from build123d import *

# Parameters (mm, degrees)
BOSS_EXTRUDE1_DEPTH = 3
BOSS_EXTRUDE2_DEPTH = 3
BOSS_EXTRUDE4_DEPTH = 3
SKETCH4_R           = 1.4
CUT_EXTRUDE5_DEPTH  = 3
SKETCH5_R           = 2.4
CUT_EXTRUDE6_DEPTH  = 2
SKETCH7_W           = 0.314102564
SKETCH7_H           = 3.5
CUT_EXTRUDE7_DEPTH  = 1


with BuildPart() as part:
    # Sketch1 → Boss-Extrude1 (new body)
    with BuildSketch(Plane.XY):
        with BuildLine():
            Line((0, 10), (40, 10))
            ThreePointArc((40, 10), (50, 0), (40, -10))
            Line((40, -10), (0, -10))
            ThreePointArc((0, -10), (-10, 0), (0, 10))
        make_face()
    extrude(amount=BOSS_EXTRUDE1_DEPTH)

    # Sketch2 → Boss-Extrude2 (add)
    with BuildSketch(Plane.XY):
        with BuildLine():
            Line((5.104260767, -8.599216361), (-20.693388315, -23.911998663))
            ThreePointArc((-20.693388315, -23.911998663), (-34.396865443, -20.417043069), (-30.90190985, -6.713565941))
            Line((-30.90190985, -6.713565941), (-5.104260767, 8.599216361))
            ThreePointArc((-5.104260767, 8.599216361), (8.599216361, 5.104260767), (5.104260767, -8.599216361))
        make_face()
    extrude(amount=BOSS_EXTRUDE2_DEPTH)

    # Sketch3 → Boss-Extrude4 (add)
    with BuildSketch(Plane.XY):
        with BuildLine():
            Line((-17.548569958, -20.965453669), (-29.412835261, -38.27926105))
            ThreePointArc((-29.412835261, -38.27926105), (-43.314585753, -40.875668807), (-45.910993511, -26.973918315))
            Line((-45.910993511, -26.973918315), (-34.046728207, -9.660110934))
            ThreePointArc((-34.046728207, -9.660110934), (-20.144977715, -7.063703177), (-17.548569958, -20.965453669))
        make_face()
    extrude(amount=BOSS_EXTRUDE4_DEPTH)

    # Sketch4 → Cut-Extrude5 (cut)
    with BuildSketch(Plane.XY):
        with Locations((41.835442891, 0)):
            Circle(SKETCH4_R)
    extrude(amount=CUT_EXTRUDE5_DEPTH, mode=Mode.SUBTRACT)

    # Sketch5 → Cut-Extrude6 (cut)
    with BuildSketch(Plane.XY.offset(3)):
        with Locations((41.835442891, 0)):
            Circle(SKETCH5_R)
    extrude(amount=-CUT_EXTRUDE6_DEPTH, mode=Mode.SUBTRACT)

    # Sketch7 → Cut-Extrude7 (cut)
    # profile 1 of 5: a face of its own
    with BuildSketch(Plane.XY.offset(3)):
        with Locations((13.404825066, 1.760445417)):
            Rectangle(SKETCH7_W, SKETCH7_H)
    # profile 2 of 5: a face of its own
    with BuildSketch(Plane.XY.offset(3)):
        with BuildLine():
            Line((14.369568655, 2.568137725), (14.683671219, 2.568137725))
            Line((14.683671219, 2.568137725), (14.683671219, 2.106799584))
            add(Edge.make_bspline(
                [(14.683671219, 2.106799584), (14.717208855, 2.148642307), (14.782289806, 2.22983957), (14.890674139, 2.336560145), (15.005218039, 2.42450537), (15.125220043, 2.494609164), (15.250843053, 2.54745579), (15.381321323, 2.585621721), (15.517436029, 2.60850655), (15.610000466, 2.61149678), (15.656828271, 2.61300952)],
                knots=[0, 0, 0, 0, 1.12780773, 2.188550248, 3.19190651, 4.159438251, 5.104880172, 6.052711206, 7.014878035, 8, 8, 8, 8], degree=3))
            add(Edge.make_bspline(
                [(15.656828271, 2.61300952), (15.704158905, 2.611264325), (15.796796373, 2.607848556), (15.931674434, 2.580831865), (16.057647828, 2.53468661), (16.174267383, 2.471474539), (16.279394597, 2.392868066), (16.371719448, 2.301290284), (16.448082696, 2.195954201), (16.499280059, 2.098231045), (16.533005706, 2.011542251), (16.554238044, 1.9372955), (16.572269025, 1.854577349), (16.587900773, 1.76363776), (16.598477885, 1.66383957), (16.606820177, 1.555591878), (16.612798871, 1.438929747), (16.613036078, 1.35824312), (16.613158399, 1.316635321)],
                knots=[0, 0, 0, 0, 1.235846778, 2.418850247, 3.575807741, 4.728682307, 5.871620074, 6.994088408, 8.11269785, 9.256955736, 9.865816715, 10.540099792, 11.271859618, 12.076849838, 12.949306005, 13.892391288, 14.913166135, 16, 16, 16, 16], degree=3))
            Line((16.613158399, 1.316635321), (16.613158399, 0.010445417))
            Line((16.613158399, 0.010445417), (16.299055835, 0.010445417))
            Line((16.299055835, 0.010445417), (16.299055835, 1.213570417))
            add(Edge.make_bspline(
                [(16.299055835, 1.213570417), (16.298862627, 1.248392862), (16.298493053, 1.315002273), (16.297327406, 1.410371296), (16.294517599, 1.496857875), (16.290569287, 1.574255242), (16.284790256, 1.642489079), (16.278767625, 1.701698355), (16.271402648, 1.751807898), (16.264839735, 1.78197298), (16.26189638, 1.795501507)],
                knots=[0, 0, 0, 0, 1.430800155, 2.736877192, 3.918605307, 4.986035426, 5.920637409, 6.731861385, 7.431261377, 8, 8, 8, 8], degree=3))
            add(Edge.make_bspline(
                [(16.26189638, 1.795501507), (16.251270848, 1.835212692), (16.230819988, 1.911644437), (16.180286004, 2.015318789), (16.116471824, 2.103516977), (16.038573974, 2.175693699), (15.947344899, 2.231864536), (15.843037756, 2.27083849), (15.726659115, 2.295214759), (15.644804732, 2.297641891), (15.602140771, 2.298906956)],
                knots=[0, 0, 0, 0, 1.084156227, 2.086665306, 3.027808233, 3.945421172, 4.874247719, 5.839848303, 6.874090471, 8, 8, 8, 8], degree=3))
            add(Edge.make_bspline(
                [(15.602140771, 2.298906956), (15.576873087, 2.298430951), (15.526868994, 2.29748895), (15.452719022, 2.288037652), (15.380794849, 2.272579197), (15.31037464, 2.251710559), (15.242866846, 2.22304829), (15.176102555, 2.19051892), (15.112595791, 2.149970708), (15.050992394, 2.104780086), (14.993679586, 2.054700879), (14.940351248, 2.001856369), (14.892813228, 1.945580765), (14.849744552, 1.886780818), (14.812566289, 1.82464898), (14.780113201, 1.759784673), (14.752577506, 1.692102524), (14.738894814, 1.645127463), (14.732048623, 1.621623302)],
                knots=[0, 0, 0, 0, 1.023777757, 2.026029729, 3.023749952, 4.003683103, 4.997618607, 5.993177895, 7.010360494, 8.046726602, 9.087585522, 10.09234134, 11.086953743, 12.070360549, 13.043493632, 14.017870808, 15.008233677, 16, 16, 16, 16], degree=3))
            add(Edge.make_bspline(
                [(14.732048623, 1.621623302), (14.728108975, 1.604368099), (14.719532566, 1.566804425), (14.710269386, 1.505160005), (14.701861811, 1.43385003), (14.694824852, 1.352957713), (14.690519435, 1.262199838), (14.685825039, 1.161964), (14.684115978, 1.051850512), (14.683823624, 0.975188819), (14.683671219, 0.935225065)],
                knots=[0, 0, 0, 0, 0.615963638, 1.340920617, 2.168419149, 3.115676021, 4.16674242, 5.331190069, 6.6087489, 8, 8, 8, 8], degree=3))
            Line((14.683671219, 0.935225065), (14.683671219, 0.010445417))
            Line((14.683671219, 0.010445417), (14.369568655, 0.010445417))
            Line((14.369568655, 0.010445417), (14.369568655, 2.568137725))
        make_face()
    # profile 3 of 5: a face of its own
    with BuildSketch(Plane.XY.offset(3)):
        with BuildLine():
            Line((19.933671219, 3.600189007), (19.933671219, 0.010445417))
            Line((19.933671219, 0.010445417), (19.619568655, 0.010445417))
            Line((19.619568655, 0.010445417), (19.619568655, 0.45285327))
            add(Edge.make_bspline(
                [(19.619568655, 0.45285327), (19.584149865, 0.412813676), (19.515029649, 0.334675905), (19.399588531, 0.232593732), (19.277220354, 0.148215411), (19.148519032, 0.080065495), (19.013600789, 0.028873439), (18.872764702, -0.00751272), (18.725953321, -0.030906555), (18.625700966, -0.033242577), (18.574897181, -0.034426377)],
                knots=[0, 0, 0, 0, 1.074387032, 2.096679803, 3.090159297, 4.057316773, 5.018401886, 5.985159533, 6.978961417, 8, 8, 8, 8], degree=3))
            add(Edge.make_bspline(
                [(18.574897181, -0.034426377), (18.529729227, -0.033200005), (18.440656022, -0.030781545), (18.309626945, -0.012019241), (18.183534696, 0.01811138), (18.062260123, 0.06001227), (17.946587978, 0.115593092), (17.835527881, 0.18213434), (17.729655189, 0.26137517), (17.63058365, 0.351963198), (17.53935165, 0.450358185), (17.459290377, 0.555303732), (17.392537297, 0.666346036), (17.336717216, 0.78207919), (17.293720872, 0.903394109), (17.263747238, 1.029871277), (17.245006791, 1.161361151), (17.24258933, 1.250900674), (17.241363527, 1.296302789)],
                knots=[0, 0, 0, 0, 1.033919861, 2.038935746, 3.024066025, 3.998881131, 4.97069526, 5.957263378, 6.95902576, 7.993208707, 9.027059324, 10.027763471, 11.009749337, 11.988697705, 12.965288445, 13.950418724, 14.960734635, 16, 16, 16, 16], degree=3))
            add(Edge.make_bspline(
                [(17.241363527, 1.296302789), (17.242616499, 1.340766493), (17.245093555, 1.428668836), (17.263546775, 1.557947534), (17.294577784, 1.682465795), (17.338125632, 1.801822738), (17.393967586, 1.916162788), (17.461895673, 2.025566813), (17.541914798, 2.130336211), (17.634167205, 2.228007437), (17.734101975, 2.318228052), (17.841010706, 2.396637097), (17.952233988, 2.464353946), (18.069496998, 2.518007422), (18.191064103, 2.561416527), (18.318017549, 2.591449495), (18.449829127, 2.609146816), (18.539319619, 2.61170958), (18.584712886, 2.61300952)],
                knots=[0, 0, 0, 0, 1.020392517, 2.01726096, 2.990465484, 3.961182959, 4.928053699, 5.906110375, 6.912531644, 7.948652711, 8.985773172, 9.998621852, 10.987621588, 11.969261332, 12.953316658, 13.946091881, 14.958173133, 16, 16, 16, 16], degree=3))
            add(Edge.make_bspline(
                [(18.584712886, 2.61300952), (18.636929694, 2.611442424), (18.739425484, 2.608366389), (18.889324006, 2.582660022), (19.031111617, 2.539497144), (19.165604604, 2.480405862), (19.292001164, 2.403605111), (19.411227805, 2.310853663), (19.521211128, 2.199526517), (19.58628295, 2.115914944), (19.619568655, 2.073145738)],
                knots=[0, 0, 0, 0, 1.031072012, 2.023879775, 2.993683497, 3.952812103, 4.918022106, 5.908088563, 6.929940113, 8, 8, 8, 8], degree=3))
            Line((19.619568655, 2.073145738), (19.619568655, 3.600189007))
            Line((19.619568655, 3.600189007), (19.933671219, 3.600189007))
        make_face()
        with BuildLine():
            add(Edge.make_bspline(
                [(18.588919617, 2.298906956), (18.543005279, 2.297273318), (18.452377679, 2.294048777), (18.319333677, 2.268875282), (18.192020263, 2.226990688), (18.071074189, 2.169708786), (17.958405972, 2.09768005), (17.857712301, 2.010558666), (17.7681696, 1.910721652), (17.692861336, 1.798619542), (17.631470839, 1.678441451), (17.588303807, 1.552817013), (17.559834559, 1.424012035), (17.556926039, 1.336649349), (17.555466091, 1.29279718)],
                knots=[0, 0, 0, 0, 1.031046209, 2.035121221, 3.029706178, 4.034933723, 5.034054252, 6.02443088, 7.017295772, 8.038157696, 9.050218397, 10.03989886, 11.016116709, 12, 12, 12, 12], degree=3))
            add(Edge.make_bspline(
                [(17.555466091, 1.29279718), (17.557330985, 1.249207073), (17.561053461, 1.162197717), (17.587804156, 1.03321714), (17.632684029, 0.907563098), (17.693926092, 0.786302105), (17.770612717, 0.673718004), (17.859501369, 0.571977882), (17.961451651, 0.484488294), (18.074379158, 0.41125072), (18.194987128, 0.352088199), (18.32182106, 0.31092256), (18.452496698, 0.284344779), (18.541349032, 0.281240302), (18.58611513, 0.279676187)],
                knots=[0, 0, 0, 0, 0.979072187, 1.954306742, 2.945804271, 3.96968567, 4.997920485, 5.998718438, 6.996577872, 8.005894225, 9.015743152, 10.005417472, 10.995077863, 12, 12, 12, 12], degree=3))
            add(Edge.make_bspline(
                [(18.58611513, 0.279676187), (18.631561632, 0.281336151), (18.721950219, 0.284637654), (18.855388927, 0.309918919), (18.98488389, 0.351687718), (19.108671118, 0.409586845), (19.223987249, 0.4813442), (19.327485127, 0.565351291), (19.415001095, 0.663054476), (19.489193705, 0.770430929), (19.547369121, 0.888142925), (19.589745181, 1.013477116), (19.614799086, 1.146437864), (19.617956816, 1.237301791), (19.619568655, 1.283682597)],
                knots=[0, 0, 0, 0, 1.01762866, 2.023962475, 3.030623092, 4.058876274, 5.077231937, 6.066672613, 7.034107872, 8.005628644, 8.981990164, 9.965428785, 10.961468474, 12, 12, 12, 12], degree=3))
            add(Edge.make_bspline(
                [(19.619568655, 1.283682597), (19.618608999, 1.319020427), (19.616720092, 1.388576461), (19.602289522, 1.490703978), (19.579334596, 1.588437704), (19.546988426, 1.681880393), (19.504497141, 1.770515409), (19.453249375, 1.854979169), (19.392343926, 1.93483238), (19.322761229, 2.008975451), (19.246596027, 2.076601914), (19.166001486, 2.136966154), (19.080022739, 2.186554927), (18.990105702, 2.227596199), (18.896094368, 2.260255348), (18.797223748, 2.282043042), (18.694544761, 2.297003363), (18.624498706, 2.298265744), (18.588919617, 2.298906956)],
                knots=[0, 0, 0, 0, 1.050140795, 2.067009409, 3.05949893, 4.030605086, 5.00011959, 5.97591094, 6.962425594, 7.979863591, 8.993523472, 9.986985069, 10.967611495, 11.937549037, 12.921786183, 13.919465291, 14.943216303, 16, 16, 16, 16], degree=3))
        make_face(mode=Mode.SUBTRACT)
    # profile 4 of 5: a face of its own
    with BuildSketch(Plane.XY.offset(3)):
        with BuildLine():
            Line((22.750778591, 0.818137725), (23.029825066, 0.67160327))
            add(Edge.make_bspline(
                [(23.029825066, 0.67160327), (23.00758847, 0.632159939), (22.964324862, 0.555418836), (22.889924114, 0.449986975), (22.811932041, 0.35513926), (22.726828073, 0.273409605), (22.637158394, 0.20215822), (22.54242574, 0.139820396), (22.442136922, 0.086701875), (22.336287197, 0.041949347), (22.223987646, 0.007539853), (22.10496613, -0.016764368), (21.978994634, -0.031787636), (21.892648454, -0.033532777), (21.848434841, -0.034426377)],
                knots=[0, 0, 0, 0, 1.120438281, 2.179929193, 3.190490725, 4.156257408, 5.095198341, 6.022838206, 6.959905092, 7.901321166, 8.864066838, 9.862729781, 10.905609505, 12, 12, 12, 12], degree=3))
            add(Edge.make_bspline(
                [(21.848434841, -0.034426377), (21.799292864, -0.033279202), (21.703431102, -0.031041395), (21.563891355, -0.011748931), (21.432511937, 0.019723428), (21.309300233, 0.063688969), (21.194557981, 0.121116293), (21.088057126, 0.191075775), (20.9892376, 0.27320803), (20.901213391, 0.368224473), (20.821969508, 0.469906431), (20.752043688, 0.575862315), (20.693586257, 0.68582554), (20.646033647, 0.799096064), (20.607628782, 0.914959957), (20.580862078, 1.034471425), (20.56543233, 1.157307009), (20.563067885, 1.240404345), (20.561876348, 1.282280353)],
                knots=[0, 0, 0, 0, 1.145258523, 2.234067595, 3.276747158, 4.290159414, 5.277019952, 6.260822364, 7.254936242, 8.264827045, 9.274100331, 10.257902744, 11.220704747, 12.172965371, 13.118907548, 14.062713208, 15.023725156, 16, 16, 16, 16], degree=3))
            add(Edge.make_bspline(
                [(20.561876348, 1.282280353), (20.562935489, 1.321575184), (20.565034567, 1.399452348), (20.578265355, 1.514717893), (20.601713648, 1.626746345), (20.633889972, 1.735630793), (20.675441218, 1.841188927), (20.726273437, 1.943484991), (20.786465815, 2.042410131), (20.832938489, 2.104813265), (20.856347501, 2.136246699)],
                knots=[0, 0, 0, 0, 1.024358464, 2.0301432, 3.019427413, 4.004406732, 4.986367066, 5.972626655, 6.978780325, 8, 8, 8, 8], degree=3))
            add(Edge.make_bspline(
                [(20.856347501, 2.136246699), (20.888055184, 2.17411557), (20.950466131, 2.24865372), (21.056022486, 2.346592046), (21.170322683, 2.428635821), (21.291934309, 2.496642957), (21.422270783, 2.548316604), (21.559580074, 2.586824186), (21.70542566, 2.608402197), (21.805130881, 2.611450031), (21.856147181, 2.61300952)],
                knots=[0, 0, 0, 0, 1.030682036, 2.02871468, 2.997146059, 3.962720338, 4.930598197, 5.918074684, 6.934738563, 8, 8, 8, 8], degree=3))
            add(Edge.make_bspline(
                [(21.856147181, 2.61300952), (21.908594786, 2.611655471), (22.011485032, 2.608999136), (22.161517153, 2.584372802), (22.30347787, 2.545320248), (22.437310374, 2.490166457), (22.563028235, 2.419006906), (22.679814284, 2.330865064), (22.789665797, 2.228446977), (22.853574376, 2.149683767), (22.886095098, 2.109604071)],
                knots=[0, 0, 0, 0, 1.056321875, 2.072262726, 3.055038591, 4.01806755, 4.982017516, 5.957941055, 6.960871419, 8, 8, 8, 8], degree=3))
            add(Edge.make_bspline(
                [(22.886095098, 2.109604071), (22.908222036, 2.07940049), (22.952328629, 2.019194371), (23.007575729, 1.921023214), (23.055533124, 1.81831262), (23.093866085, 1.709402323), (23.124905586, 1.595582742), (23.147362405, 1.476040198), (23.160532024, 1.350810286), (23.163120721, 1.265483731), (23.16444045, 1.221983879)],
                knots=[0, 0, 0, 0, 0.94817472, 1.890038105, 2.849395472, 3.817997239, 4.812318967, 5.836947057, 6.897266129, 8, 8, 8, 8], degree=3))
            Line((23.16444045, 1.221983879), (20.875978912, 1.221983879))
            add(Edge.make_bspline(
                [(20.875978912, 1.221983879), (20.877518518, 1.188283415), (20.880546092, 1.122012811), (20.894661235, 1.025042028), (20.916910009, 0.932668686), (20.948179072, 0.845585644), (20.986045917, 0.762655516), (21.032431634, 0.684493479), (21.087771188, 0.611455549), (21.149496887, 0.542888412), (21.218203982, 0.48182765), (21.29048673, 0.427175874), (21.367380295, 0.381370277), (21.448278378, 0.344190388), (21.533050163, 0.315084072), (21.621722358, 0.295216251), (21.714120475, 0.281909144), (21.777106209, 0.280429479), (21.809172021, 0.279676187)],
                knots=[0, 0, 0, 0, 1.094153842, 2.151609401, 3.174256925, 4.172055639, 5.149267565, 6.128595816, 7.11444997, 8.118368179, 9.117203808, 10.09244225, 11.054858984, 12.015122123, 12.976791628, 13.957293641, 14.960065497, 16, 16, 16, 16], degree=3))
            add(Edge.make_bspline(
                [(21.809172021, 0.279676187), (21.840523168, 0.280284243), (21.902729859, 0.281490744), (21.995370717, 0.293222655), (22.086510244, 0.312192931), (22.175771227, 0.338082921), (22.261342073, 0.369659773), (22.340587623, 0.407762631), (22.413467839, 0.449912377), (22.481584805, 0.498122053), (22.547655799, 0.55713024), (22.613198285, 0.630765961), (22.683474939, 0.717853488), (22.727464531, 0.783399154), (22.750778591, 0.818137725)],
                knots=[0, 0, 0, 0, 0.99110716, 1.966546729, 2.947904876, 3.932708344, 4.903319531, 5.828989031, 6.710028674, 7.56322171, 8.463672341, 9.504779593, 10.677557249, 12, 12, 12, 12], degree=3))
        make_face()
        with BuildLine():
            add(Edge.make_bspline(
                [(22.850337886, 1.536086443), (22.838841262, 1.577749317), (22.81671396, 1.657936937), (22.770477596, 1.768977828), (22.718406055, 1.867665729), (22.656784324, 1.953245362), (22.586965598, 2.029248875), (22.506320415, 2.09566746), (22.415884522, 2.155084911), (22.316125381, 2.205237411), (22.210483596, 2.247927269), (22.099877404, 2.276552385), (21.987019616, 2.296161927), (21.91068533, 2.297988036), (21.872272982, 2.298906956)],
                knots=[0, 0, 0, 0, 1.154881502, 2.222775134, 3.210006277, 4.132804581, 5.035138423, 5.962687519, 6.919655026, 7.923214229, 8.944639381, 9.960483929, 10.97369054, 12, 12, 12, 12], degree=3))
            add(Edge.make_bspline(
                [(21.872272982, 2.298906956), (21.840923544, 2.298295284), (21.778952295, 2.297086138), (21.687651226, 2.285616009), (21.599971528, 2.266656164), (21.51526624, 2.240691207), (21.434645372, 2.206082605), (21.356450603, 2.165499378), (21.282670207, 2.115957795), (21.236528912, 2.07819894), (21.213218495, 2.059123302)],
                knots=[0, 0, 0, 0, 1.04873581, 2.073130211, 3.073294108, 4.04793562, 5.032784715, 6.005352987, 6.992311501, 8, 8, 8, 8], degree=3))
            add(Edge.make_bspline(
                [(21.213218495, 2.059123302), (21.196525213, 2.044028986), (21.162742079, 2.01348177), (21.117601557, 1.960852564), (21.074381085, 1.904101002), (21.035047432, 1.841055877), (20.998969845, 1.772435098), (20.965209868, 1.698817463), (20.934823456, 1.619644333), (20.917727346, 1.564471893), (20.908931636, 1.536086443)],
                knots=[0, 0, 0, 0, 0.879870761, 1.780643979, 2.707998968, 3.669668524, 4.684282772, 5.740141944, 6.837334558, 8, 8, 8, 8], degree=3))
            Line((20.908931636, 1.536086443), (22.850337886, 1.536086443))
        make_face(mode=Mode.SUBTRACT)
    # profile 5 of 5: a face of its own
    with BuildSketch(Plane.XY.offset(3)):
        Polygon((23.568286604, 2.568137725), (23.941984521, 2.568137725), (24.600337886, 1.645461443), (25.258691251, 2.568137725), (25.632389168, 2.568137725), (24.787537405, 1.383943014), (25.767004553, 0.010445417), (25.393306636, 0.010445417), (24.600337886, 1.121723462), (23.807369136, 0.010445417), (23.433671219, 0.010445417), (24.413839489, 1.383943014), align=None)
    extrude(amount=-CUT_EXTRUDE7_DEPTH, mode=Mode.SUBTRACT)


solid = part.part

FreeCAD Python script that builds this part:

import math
import FreeCAD as App
import Part
import Sketcher

V = App.Vector
Q = App.Units.Quantity


def add_polygon(sketch, points):
    """Adds a closed chain of lines whose ends are joined by coincident constraints."""
    first, n = sketch.GeometryCount, len(points)
    for a, b in zip(points, points[1:] + points[:1]):
        sketch.addGeometry(Part.LineSegment(App.Vector(*a, 0), App.Vector(*b, 0)), False)
    for i in range(n):
        sketch.addConstraint(Sketcher.Constraint("Coincident", first + i, 2, first + (i + 1) % n, 1))

doc = App.newDocument("Part")
body = doc.addObject("PartDesign::Body", "Body")

sketch1 = doc.addObject("Sketcher::SketchObject", "Sketch")
body.addObject(sketch1)
sketch1.AttachmentSupport = (doc.XY_Plane, [""])
sketch1.MapMode = "FlatFace"
sketch1.addGeometry([
    Part.LineSegment(V(40, 10, 0), V(0, 10, 0)),
    Part.ArcOfCircle(Part.Circle(V(0, 0, 0), V(0, 0, 1), 10), math.radians(90), math.radians(270)),
    Part.LineSegment(V(0, -10, 0), V(40, -10, 0)),
    Part.ArcOfCircle(Part.Circle(V(40, 0, 0), V(0, 0, 1), 10), math.radians(-90), math.radians(90)),
], False)
sketch1.addConstraint([
    Sketcher.Constraint("Tangent", 0, 2, 1, 1),
    Sketcher.Constraint("Tangent", 1, 2, 2, 1),
    Sketcher.Constraint("Tangent", 2, 2, 3, 1),
    Sketcher.Constraint("Tangent", 3, 2, 0, 1),
    Sketcher.Constraint("Horizontal", 0),
    Sketcher.Constraint("Horizontal", 2),
    Sketcher.Constraint("Coincident", 1, 3, -1, 1),
    Sketcher.Constraint("Radius", 1, Q("10 mm")),
    Sketcher.Constraint("DistanceX", 0, 2, 0, 1, Q("40 mm")),
])
pad1 = doc.addObject("PartDesign::Pad", "Pad")
body.addObject(pad1)
pad1.Profile = sketch1
pad1.Length = 3

sketch2 = doc.addObject("Sketcher::SketchObject", "Sketch001")
body.addObject(sketch2)
sketch2.AttachmentSupport = (doc.XY_Plane, [""])
sketch2.MapMode = "FlatFace"
sketch2.addGeometry([
    Part.LineSegment(V(-21, -24, 0), V(5, -9, 0)),
    Part.ArcOfCircle(Part.Circle(V(0, 0, 0), V(0, 0, 1), 10), math.radians(-59), math.radians(121)),
    Part.LineSegment(V(-5, 9, 0), V(-31, -7, 0)),
    Part.ArcOfCircle(Part.Circle(V(-26, -15, 0), V(0, 0, 1), 10), math.radians(121), math.radians(301)),
], False)
sketch2.addConstraint([
    Sketcher.Constraint("Tangent", 0, 2, 1, 1),
    Sketcher.Constraint("Tangent", 1, 2, 2, 1),
    Sketcher.Constraint("Tangent", 2, 2, 3, 1),
    Sketcher.Constraint("Tangent", 3, 2, 0, 1),
    Sketcher.Constraint("Coincident", 1, 3, -1, 1),
    Sketcher.Constraint("Equal", 1, 3),
    Sketcher.Constraint("Radius", 1, Q("10 mm")),
    Sketcher.Constraint("Distance", 0, Q("30 mm")),
    Sketcher.Constraint("DistanceY", 3, 2, -1, 1, Q("23.911999 mm")),
])
pad2 = doc.addObject("PartDesign::Pad", "Pad001")
body.addObject(pad2)
pad2.Profile = sketch2
pad2.Length = 3

sketch3 = doc.addObject("Sketcher::SketchObject", "Sketch002")
body.addObject(sketch3)
sketch3.AttachmentSupport = (doc.XY_Plane, [""])
sketch3.MapMode = "FlatFace"
sketch3.addGeometry([
    Part.LineSegment(V(-29, -38, 0), V(-18, -21, 0)),
    Part.ArcOfCircle(Part.Circle(V(-26, -15, 0), V(0, 0, 1), 10), math.radians(-34), math.radians(146)),
    Part.LineSegment(V(-34, -10, 0), V(-46, -27, 0)),
    Part.ArcOfCircle(Part.Circle(V(-38, -33, 0), V(0, 0, 1), 10), math.radians(146), math.radians(326)),
], False)
sketch3.addConstraint([
    Sketcher.Constraint("Tangent", 0, 2, 1, 1),
    Sketcher.Constraint("Tangent", 1, 2, 2, 1),
    Sketcher.Constraint("Tangent", 2, 2, 3, 1),
    Sketcher.Constraint("Tangent", 3, 2, 0, 1),
    Sketcher.Constraint("Equal", 1, 3),
    Sketcher.Constraint("Radius", 1, Q("10 mm")),
    Sketcher.Constraint("DistanceX", 1, 3, -1, 1, Q("25.797649 mm")),
    Sketcher.Constraint("DistanceY", 3, 3, -1, 1, Q("32.62659 mm")),
    Sketcher.Constraint("DistanceX", 0, 2, -1, 1, Q("17.54857 mm")),
    Sketcher.Constraint("DistanceY", 1, 2, -1, 1, Q("9.660111 mm")),
])
pad3 = doc.addObject("PartDesign::Pad", "Pad002")
body.addObject(pad3)
pad3.Profile = sketch3
pad3.Length = 3

sketch4 = doc.addObject("Sketcher::SketchObject", "Sketch003")
body.addObject(sketch4)
sketch4.AttachmentSupport = (doc.XY_Plane, [""])
sketch4.MapMode = "FlatFace"
sketch4.addGeometry(Part.Circle(V(41.8, 0, 0), V(0, 0, 1), 1.4), False)
sketch4.addConstraint([
    Sketcher.Constraint("PointOnObject", 0, 3, -1),
    Sketcher.Constraint("Diameter", 0, Q("2.8 mm")),
    Sketcher.Constraint("DistanceX", -1, 1, 0, 3, Q("41.835443 mm")),
])
pocket1 = doc.addObject("PartDesign::Pocket", "Pocket")
body.addObject(pocket1)
pocket1.Profile = sketch4
pocket1.Length = 3
pocket1.Reversed = True

sketch5 = doc.addObject("Sketcher::SketchObject", "Sketch004")
body.addObject(sketch5)
sketch5.AttachmentSupport = (doc.XY_Plane, [""])
sketch5.MapMode = "FlatFace"
sketch5.AttachmentOffset = App.Placement(V(0, 0, 3), App.Rotation())
sketch5.addGeometry(Part.Circle(V(41.8, 0, 0), V(0, 0, 1), 2.4), False)
sketch5.addConstraint([
    Sketcher.Constraint("PointOnObject", 0, 3, -1),
    Sketcher.Constraint("Diameter", 0, Q("4.8 mm")),
    Sketcher.Constraint("DistanceX", -1, 1, 0, 3, Q("41.835443 mm")),
])
pocket2 = doc.addObject("PartDesign::Pocket", "Pocket001")
body.addObject(pocket2)
pocket2.Profile = sketch5
pocket2.Length = 2

sketch6 = doc.addObject("Sketcher::SketchObject", "Sketch005")
body.addObject(sketch6)
sketch6.AttachmentSupport = (doc.XY_Plane, [""])
sketch6.MapMode = "FlatFace"
sketch6.AttachmentOffset = App.Placement(V(0, 0, 3), App.Rotation())
add_polygon(sketch6, [(13.247774, 3.510445), (13.247774, 0.010445), (13.561876, 0.010445), (13.561876, 3.510445)])
sketch6.addGeometry(Part.LineSegment(V(14.683671, 2.568138, 0), V(14.369569, 2.568138, 0)), False)
sketch6.addGeometry(Part.LineSegment(V(14.369569, 2.568138, 0), V(14.369569, 0.010445, 0)), False)
sketch6.addGeometry(Part.LineSegment(V(14.369569, 0.010445, 0), V(14.683671, 0.010445, 0)), False)
sketch6.addGeometry(Part.LineSegment(V(14.683671, 0.010445, 0), V(14.683671, 0.935225, 0)), False)
sketch6.addGeometry(Part.BSplineCurve([V(14.732049, 1.621623, 0), V(14.728109, 1.604368, 0), V(14.719533, 1.566804, 0), V(14.710269, 1.50516, 0), V(14.701862, 1.43385, 0), V(14.694825, 1.352958, 0), V(14.690519, 1.2622, 0), V(14.685825, 1.161964, 0), V(14.684116, 1.051851, 0), V(14.683824, 0.975189, 0), V(14.683671, 0.935225, 0)], [4, 1, 1, 1, 1, 1, 1, 1, 4], [0, 0.615963638, 1.340920617, 2.168419149, 3.115676021, 4.16674242, 5.331190069, 6.6087489, 8], False, 3, [1, 1, 1, 1, 1, 1, 1, 1, 1, 1, 1], False), False)
sketch6.addGeometry(Part.BSplineCurve([V(15.602141, 2.298907, 0), V(15.576873, 2.298431, 0), V(15.526869, 2.297489, 0), V(15.452719, 2.288038, 0), V(15.380795, 2.272579, 0), V(15.310375, 2.251711, 0), V(15.242867, 2.223048, 0), V(15.176103, 2.190519, 0), V(15.112596, 2.149971, 0), V(15.050992, 2.10478, 0), V(14.99368, 2.054701, 0), V(14.940351, 2.001856, 0), V(14.892813, 1.945581, 0), V(14.849745, 1.886781, 0), V(14.812566, 1.824649, 0), V(14.780113, 1.759785, 0), V(14.752578, 1.692103, 0), V(14.738895, 1.645127, 0), V(14.732049, 1.621623, 0)], [4, 1, 1, 1, 1, 1, 1, 1, 1, 1, 1, 1, 1, 1, 1, 1, 4], [0, 1.023777757, 2.026029729, 3.023749952, 4.003683103, 4.997618607, 5.993177895, 7.010360494, 8.046726602, 9.087585522, 10.09234134, 11.086953743, 12.070360549, 13.043493632, 14.017870808, 15.008233677, 16], False, 3, [1, 1, 1, 1, 1, 1, 1, 1, 1, 1, 1, 1, 1, 1, 1, 1, 1, 1, 1], False), False)
sketch6.addGeometry(Part.BSplineCurve([V(16.261896, 1.795502, 0), V(16.251271, 1.835213, 0), V(16.23082, 1.911644, 0), V(16.180286, 2.015319, 0), V(16.116472, 2.103517, 0), V(16.038574, 2.175694, 0), V(15.947345, 2.231865, 0), V(15.843038, 2.270838, 0), V(15.726659, 2.295215, 0), V(15.644805, 2.297642, 0), V(15.602141, 2.298907, 0)], [4, 1, 1, 1, 1, 1, 1, 1, 4], [0, 1.084156227, 2.086665306, 3.027808233, 3.945421172, 4.874247719, 5.839848303, 6.874090471, 8], False, 3, [1, 1, 1, 1, 1, 1, 1, 1, 1, 1, 1], False), False)
sketch6.addGeometry(Part.BSplineCurve([V(16.299056, 1.21357, 0), V(16.298863, 1.248393, 0), V(16.298493, 1.315002, 0), V(16.297327, 1.410371, 0), V(16.294518, 1.496858, 0), V(16.290569, 1.574255, 0), V(16.28479, 1.642489, 0), V(16.278768, 1.701698, 0), V(16.271403, 1.751808, 0), V(16.26484, 1.781973, 0), V(16.261896, 1.795502, 0)], [4, 1, 1, 1, 1, 1, 1, 1, 4], [0, 1.430800155, 2.736877192, 3.918605307, 4.986035426, 5.920637409, 6.731861385, 7.431261377, 8], False, 3, [1, 1, 1, 1, 1, 1, 1, 1, 1, 1, 1], False), False)
sketch6.addGeometry(Part.LineSegment(V(16.299056, 1.21357, 0), V(16.299056, 0.010445, 0)), False)
sketch6.addGeometry(Part.LineSegment(V(16.299056, 0.010445, 0), V(16.613158, 0.010445, 0)), False)
sketch6.addGeometry(Part.LineSegment(V(16.613158, 0.010445, 0), V(16.613158, 1.316635, 0)), False)
sketch6.addGeometry(Part.BSplineCurve([V(15.656828, 2.61301, 0), V(15.704159, 2.611264, 0), V(15.796796, 2.607849, 0), V(15.931674, 2.580832, 0), V(16.057648, 2.534687, 0), V(16.174267, 2.471475, 0), V(16.279395, 2.392868, 0), V(16.371719, 2.30129, 0), V(16.448083, 2.195954, 0), V(16.49928, 2.098231, 0), V(16.533006, 2.011542, 0), V(16.554238, 1.937296, 0), V(16.572269, 1.854577, 0), V(16.587901, 1.763638, 0), V(16.598478, 1.66384, 0), V(16.60682, 1.555592, 0), V(16.612799, 1.43893, 0), V(16.613036, 1.358243, 0), V(16.613158, 1.316635, 0)], [4, 1, 1, 1, 1, 1, 1, 1, 1, 1, 1, 1, 1, 1, 1, 1, 4], [0, 1.235846778, 2.418850247, 3.575807741, 4.728682307, 5.871620074, 6.994088408, 8.11269785, 9.256955736, 9.865816715, 10.540099792, 11.271859618, 12.076849838, 12.949306005, 13.892391288, 14.913166135, 16], False, 3, [1, 1, 1, 1, 1, 1, 1, 1, 1, 1, 1, 1, 1, 1, 1, 1, 1, 1, 1], False), False)
sketch6.addGeometry(Part.BSplineCurve([V(14.683671, 2.1068, 0), V(14.717209, 2.148642, 0), V(14.78229, 2.22984, 0), V(14.890674, 2.33656, 0), V(15.005218, 2.424505, 0), V(15.12522, 2.494609, 0), V(15.250843, 2.547456, 0), V(15.381321, 2.585622, 0), V(15.517436, 2.608507, 0), V(15.61, 2.611497, 0), V(15.656828, 2.61301, 0)], [4, 1, 1, 1, 1, 1, 1, 1, 4], [0, 1.12780773, 2.188550248, 3.19190651, 4.159438251, 5.104880172, 6.052711206, 7.014878035, 8], False, 3, [1, 1, 1, 1, 1, 1, 1, 1, 1, 1, 1], False), False)
sketch6.addGeometry(Part.LineSegment(V(14.683671, 2.1068, 0), V(14.683671, 2.568138, 0)), False)
sketch6.addGeometry(Part.LineSegment(V(19.933671, 0.010445, 0), V(19.933671, 3.600189, 0)), False)
sketch6.addGeometry(Part.LineSegment(V(19.933671, 3.600189, 0), V(19.619569, 3.600189, 0)), False)
sketch6.addGeometry(Part.LineSegment(V(19.619569, 3.600189, 0), V(19.619569, 2.073146, 0)), False)
sketch6.addGeometry(Part.BSplineCurve([V(18.584713, 2.61301, 0), V(18.63693, 2.611442, 0), V(18.739425, 2.608366, 0), V(18.889324, 2.58266, 0), V(19.031112, 2.539497, 0), V(19.165605, 2.480406, 0), V(19.292001, 2.403605, 0), V(19.411228, 2.310854, 0), V(19.521211, 2.199527, 0), V(19.586283, 2.115915, 0), V(19.619569, 2.073146, 0)], [4, 1, 1, 1, 1, 1, 1, 1, 4], [0, 1.031072012, 2.023879775, 2.993683497, 3.952812103, 4.918022106, 5.908088563, 6.929940113, 8], False, 3, [1, 1, 1, 1, 1, 1, 1, 1, 1, 1, 1], False), False)
sketch6.addGeometry(Part.BSplineCurve([V(17.241364, 1.296303, 0), V(17.242616, 1.340766, 0), V(17.245094, 1.428669, 0), V(17.263547, 1.557948, 0), V(17.294578, 1.682466, 0), V(17.338126, 1.801823, 0), V(17.393968, 1.916163, 0), V(17.461896, 2.025567, 0), V(17.541915, 2.130336, 0), V(17.634167, 2.228007, 0), V(17.734102, 2.318228, 0), V(17.841011, 2.396637, 0), V(17.952234, 2.464354, 0), V(18.069497, 2.518007, 0), V(18.191064, 2.561417, 0), V(18.318018, 2.591449, 0), V(18.449829, 2.609147, 0), V(18.53932, 2.61171, 0), V(18.584713, 2.61301, 0)], [4, 1, 1, 1, 1, 1, 1, 1, 1, 1, 1, 1, 1, 1, 1, 1, 4], [0, 1.020392517, 2.01726096, 2.990465484, 3.961182959, 4.928053699, 5.906110375, 6.912531644, 7.948652711, 8.985773172, 9.998621852, 10.987621588, 11.969261332, 12.953316658, 13.946091881, 14.958173133, 16], False, 3, [1, 1, 1, 1, 1, 1, 1, 1, 1, 1, 1, 1, 1, 1, 1, 1, 1, 1, 1], False), False)
sketch6.addGeometry(Part.BSplineCurve([V(18.574897, -0.034426, 0), V(18.529729, -0.0332, 0), V(18.440656, -0.030782, 0), V(18.309627, -0.012019, 0), V(18.183535, 0.018111, 0), V(18.06226, 0.060012, 0), V(17.946588, 0.115593, 0), V(17.835528, 0.182134, 0), V(17.729655, 0.261375, 0), V(17.630584, 0.351963, 0), V(17.539352, 0.450358, 0), V(17.45929, 0.555304, 0), V(17.392537, 0.666346, 0), V(17.336717, 0.782079, 0), V(17.293721, 0.903394, 0), V(17.263747, 1.029871, 0), V(17.245007, 1.161361, 0), V(17.242589, 1.250901, 0), V(17.241364, 1.296303, 0)], [4, 1, 1, 1, 1, 1, 1, 1, 1, 1, 1, 1, 1, 1, 1, 1, 4], [0, 1.033919861, 2.038935746, 3.024066025, 3.998881131, 4.97069526, 5.957263378, 6.95902576, 7.993208707, 9.027059324, 10.027763471, 11.009749337, 11.988697705, 12.965288445, 13.950418724, 14.960734635, 16], False, 3, [1, 1, 1, 1, 1, 1, 1, 1, 1, 1, 1, 1, 1, 1, 1, 1, 1, 1, 1], False), False)
sketch6.addGeometry(Part.BSplineCurve([V(19.619569, 0.452853, 0), V(19.58415, 0.412814, 0), V(19.51503, 0.334676, 0), V(19.399589, 0.232594, 0), V(19.27722, 0.148215, 0), V(19.148519, 0.080065, 0), V(19.013601, 0.028873, 0), V(18.872765, -0.007513, 0), V(18.725953, -0.030907, 0), V(18.625701, -0.033243, 0), V(18.574897, -0.034426, 0)], [4, 1, 1, 1, 1, 1, 1, 1, 4], [0, 1.074387032, 2.096679803, 3.090159297, 4.057316773, 5.018401886, 5.985159533, 6.978961417, 8], False, 3, [1, 1, 1, 1, 1, 1, 1, 1, 1, 1, 1], False), False)
sketch6.addGeometry(Part.LineSegment(V(19.619569, 0.452853, 0), V(19.619569, 0.010445, 0)), False)
sketch6.addGeometry(Part.LineSegment(V(19.619569, 0.010445, 0), V(19.933671, 0.010445, 0)), False)
sketch6.addGeometry(Part.BSplineCurve([V(19.619569, 1.283683, 0), V(19.618609, 1.31902, 0), V(19.61672, 1.388576, 0), V(19.60229, 1.490704, 0), V(19.579335, 1.588438, 0), V(19.546988, 1.68188, 0), V(19.504497, 1.770515, 0), V(19.453249, 1.854979, 0), V(19.392344, 1.934832, 0), V(19.322761, 2.008975, 0), V(19.246596, 2.076602, 0), V(19.166001, 2.136966, 0), V(19.080023, 2.186555, 0), V(18.990106, 2.227596, 0), V(18.896094, 2.260255, 0), V(18.797224, 2.282043, 0), V(18.694545, 2.297003, 0), V(18.624499, 2.298266, 0), V(18.58892, 2.298907, 0)], [4, 1, 1, 1, 1, 1, 1, 1, 1, 1, 1, 1, 1, 1, 1, 1, 4], [0, 1.050140795, 2.067009409, 3.05949893, 4.030605086, 5.00011959, 5.97591094, 6.962425594, 7.979863591, 8.993523472, 9.986985069, 10.967611495, 11.937549037, 12.921786183, 13.919465291, 14.943216303, 16], False, 3, [1, 1, 1, 1, 1, 1, 1, 1, 1, 1, 1, 1, 1, 1, 1, 1, 1, 1, 1], False), False)
sketch6.addGeometry(Part.BSplineCurve([V(18.586115, 0.279676, 0), V(18.631562, 0.281336, 0), V(18.72195, 0.284638, 0), V(18.855389, 0.309919, 0), V(18.984884, 0.351688, 0), V(19.108671, 0.409587, 0), V(19.223987, 0.481344, 0), V(19.327485, 0.565351, 0), V(19.415001, 0.663054, 0), V(19.489194, 0.770431, 0), V(19.547369, 0.888143, 0), V(19.589745, 1.013477, 0), V(19.614799, 1.146438, 0), V(19.617957, 1.237302, 0), V(19.619569, 1.283683, 0)], [4, 1, 1, 1, 1, 1, 1, 1, 1, 1, 1, 1, 4], [0, 1.01762866, 2.023962475, 3.030623092, 4.058876274, 5.077231937, 6.066672613, 7.034107872, 8.005628644, 8.981990164, 9.965428785, 10.961468474, 12], False, 3, [1, 1, 1, 1, 1, 1, 1, 1, 1, 1, 1, 1, 1, 1, 1], False), False)
sketch6.addGeometry(Part.BSplineCurve([V(17.555466, 1.292797, 0), V(17.557331, 1.249207, 0), V(17.561053, 1.162198, 0), V(17.587804, 1.033217, 0), V(17.632684, 0.907563, 0), V(17.693926, 0.786302, 0), V(17.770613, 0.673718, 0), V(17.859501, 0.571978, 0), V(17.961452, 0.484488, 0), V(18.074379, 0.411251, 0), V(18.194987, 0.352088, 0), V(18.321821, 0.310923, 0), V(18.452497, 0.284345, 0), V(18.541349, 0.28124, 0), V(18.586115, 0.279676, 0)], [4, 1, 1, 1, 1, 1, 1, 1, 1, 1, 1, 1, 4], [0, 0.979072187, 1.954306742, 2.945804271, 3.96968567, 4.997920485, 5.998718438, 6.996577872, 8.005894225, 9.015743152, 10.005417472, 10.995077863, 12], False, 3, [1, 1, 1, 1, 1, 1, 1, 1, 1, 1, 1, 1, 1, 1, 1], False), False)
sketch6.addGeometry(Part.BSplineCurve([V(18.58892, 2.298907, 0), V(18.543005, 2.297273, 0), V(18.452378, 2.294049, 0), V(18.319334, 2.268875, 0), V(18.19202, 2.226991, 0), V(18.071074, 2.169709, 0), V(17.958406, 2.09768, 0), V(17.857712, 2.010559, 0), V(17.76817, 1.910722, 0), V(17.692861, 1.79862, 0), V(17.631471, 1.678441, 0), V(17.588304, 1.552817, 0), V(17.559835, 1.424012, 0), V(17.556926, 1.336649, 0), V(17.555466, 1.292797, 0)], [4, 1, 1, 1, 1, 1, 1, 1, 1, 1, 1, 1, 4], [0, 1.031046209, 2.035121221, 3.029706178, 4.034933723, 5.034054252, 6.02443088, 7.017295772, 8.038157696, 9.050218397, 10.03989886, 11.016116709, 12], False, 3, [1, 1, 1, 1, 1, 1, 1, 1, 1, 1, 1, 1, 1, 1, 1], False), False)
sketch6.addGeometry(Part.LineSegment(V(23.029825, 0.671603, 0), V(22.750779, 0.818138, 0)), False)
sketch6.addGeometry(Part.BSplineCurve([V(21.809172, 0.279676, 0), V(21.840523, 0.280284, 0), V(21.90273, 0.281491, 0), V(21.995371, 0.293223, 0), V(22.08651, 0.312193, 0), V(22.175771, 0.338083, 0), V(22.261342, 0.36966, 0), V(22.340588, 0.407763, 0), V(22.413468, 0.449912, 0), V(22.481585, 0.498122, 0), V(22.547656, 0.55713, 0), V(22.613198, 0.630766, 0), V(22.683475, 0.717853, 0), V(22.727465, 0.783399, 0), V(22.750779, 0.818138, 0)], [4, 1, 1, 1, 1, 1, 1, 1, 1, 1, 1, 1, 4], [0, 0.99110716, 1.966546729, 2.947904876, 3.932708344, 4.903319531, 5.828989031, 6.710028674, 7.56322171, 8.463672341, 9.504779593, 10.677557249, 12], False, 3, [1, 1, 1, 1, 1, 1, 1, 1, 1, 1, 1, 1, 1, 1, 1], False), False)
sketch6.addGeometry(Part.BSplineCurve([V(20.875979, 1.221984, 0), V(20.877519, 1.188283, 0), V(20.880546, 1.122013, 0), V(20.894661, 1.025042, 0), V(20.91691, 0.932669, 0), V(20.948179, 0.845586, 0), V(20.986046, 0.762656, 0), V(21.032432, 0.684493, 0), V(21.087771, 0.611456, 0), V(21.149497, 0.542888, 0), V(21.218204, 0.481828, 0), V(21.290487, 0.427176, 0), V(21.36738, 0.38137, 0), V(21.448278, 0.34419, 0), V(21.53305, 0.315084, 0), V(21.621722, 0.295216, 0), V(21.71412, 0.281909, 0), V(21.777106, 0.280429, 0), V(21.809172, 0.279676, 0)], [4, 1, 1, 1, 1, 1, 1, 1, 1, 1, 1, 1, 1, 1, 1, 1, 4], [0, 1.094153842, 2.151609401, 3.174256925, 4.172055639, 5.149267565, 6.128595816, 7.11444997, 8.118368179, 9.117203808, 10.09244225, 11.054858984, 12.015122123, 12.976791628, 13.957293641, 14.960065497, 16], False, 3, [1, 1, 1, 1, 1, 1, 1, 1, 1, 1, 1, 1, 1, 1, 1, 1, 1, 1, 1], False), False)
sketch6.addGeometry(Part.LineSegment(V(20.875979, 1.221984, 0), V(23.16444, 1.221984, 0)), False)
sketch6.addGeometry(Part.BSplineCurve([V(22.886095, 2.109604, 0), V(22.908222, 2.0794, 0), V(22.952329, 2.019194, 0), V(23.007576, 1.921023, 0), V(23.055533, 1.818313, 0), V(23.093866, 1.709402, 0), V(23.124906, 1.595583, 0), V(23.147362, 1.47604, 0), V(23.160532, 1.35081, 0), V(23.163121, 1.265484, 0), V(23.16444, 1.221984, 0)], [4, 1, 1, 1, 1, 1, 1, 1, 4], [0, 0.94817472, 1.890038105, 2.849395472, 3.817997239, 4.812318967, 5.836947057, 6.897266129, 8], False, 3, [1, 1, 1, 1, 1, 1, 1, 1, 1, 1, 1], False), False)
sketch6.addGeometry(Part.BSplineCurve([V(21.856147, 2.61301, 0), V(21.908595, 2.611655, 0), V(22.011485, 2.608999, 0), V(22.161517, 2.584373, 0), V(22.303478, 2.54532, 0), V(22.43731, 2.490166, 0), V(22.563028, 2.419007, 0), V(22.679814, 2.330865, 0), V(22.789666, 2.228447, 0), V(22.853574, 2.149684, 0), V(22.886095, 2.109604, 0)], [4, 1, 1, 1, 1, 1, 1, 1, 4], [0, 1.056321875, 2.072262726, 3.055038591, 4.01806755, 4.982017516, 5.957941055, 6.960871419, 8], False, 3, [1, 1, 1, 1, 1, 1, 1, 1, 1, 1, 1], False), False)
sketch6.addGeometry(Part.BSplineCurve([V(20.856348, 2.136247, 0), V(20.888055, 2.174116, 0), V(20.950466, 2.248654, 0), V(21.056022, 2.346592, 0), V(21.170323, 2.428636, 0), V(21.291934, 2.496643, 0), V(21.422271, 2.548317, 0), V(21.55958, 2.586824, 0), V(21.705426, 2.608402, 0), V(21.805131, 2.61145, 0), V(21.856147, 2.61301, 0)], [4, 1, 1, 1, 1, 1, 1, 1, 4], [0, 1.030682036, 2.02871468, 2.997146059, 3.962720338, 4.930598197, 5.918074684, 6.934738563, 8], False, 3, [1, 1, 1, 1, 1, 1, 1, 1, 1, 1, 1], False), False)
sketch6.addGeometry(Part.BSplineCurve([V(20.561876, 1.28228, 0), V(20.562935, 1.321575, 0), V(20.565035, 1.399452, 0), V(20.578265, 1.514718, 0), V(20.601714, 1.626746, 0), V(20.63389, 1.735631, 0), V(20.675441, 1.841189, 0), V(20.726273, 1.943485, 0), V(20.786466, 2.04241, 0), V(20.832938, 2.104813, 0), V(20.856348, 2.136247, 0)], [4, 1, 1, 1, 1, 1, 1, 1, 4], [0, 1.024358464, 2.0301432, 3.019427413, 4.004406732, 4.986367066, 5.972626655, 6.978780325, 8], False, 3, [1, 1, 1, 1, 1, 1, 1, 1, 1, 1, 1], False), False)
sketch6.addGeometry(Part.BSplineCurve([V(21.848435, -0.034426, 0), V(21.799293, -0.033279, 0), V(21.703431, -0.031041, 0), V(21.563891, -0.011749, 0), V(21.432512, 0.019723, 0), V(21.3093, 0.063689, 0), V(21.194558, 0.121116, 0), V(21.088057, 0.191076, 0), V(20.989238, 0.273208, 0), V(20.901213, 0.368224, 0), V(20.82197, 0.469906, 0), V(20.752044, 0.575862, 0), V(20.693586, 0.685826, 0), V(20.646034, 0.799096, 0), V(20.607629, 0.91496, 0), V(20.580862, 1.034471, 0), V(20.565432, 1.157307, 0), V(20.563068, 1.240404, 0), V(20.561876, 1.28228, 0)], [4, 1, 1, 1, 1, 1, 1, 1, 1, 1, 1, 1, 1, 1, 1, 1, 4], [0, 1.145258523, 2.234067595, 3.276747158, 4.290159414, 5.277019952, 6.260822364, 7.254936242, 8.264827045, 9.274100331, 10.257902744, 11.220704747, 12.172965371, 13.118907548, 14.062713208, 15.023725156, 16], False, 3, [1, 1, 1, 1, 1, 1, 1, 1, 1, 1, 1, 1, 1, 1, 1, 1, 1, 1, 1], False), False)
sketch6.addGeometry(Part.BSplineCurve([V(23.029825, 0.671603, 0), V(23.007588, 0.63216, 0), V(22.964325, 0.555419, 0), V(22.889924, 0.449987, 0), V(22.811932, 0.355139, 0), V(22.726828, 0.27341, 0), V(22.637158, 0.202158, 0), V(22.542426, 0.13982, 0), V(22.442137, 0.086702, 0), V(22.336287, 0.041949, 0), V(22.223988, 0.00754, 0), V(22.104966, -0.016764, 0), V(21.978995, -0.031788, 0), V(21.892648, -0.033533, 0), V(21.848435, -0.034426, 0)], [4, 1, 1, 1, 1, 1, 1, 1, 1, 1, 1, 1, 4], [0, 1.120438281, 2.179929193, 3.190490725, 4.156257408, 5.095198341, 6.022838206, 6.959905092, 7.901321166, 8.864066838, 9.862729781, 10.905609505, 12], False, 3, [1, 1, 1, 1, 1, 1, 1, 1, 1, 1, 1, 1, 1, 1, 1], False), False)
sketch6.addGeometry(Part.LineSegment(V(22.850338, 1.536086, 0), V(20.908932, 1.536086, 0)), False)
sketch6.addGeometry(Part.BSplineCurve([V(21.213218, 2.059123, 0), V(21.196525, 2.044029, 0), V(21.162742, 2.013482, 0), V(21.117602, 1.960853, 0), V(21.074381, 1.904101, 0), V(21.035047, 1.841056, 0), V(20.99897, 1.772435, 0), V(20.96521, 1.698817, 0), V(20.934823, 1.619644, 0), V(20.917727, 1.564472, 0), V(20.908932, 1.536086, 0)], [4, 1, 1, 1, 1, 1, 1, 1, 4], [0, 0.879870761, 1.780643979, 2.707998968, 3.669668524, 4.684282772, 5.740141944, 6.837334558, 8], False, 3, [1, 1, 1, 1, 1, 1, 1, 1, 1, 1, 1], False), False)
sketch6.addGeometry(Part.BSplineCurve([V(21.872273, 2.298907, 0), V(21.840924, 2.298295, 0), V(21.778952, 2.297086, 0), V(21.687651, 2.285616, 0), V(21.599972, 2.266656, 0), V(21.515266, 2.240691, 0), V(21.434645, 2.206083, 0), V(21.356451, 2.165499, 0), V(21.28267, 2.115958, 0), V(21.236529, 2.078199, 0), V(21.213218, 2.059123, 0)], [4, 1, 1, 1, 1, 1, 1, 1, 4], [0, 1.04873581, 2.073130211, 3.073294108, 4.04793562, 5.032784715, 6.005352987, 6.992311501, 8], False, 3, [1, 1, 1, 1, 1, 1, 1, 1, 1, 1, 1], False), False)
sketch6.addGeometry(Part.BSplineCurve([V(22.850338, 1.536086, 0), V(22.838841, 1.577749, 0), V(22.816714, 1.657937, 0), V(22.770478, 1.768978, 0), V(22.718406, 1.867666, 0), V(22.656784, 1.953245, 0), V(22.586966, 2.029249, 0), V(22.50632, 2.095667, 0), V(22.415885, 2.155085, 0), V(22.316125, 2.205237, 0), V(22.210484, 2.247927, 0), V(22.099877, 2.276552, 0), V(21.98702, 2.296162, 0), V(21.910685, 2.297988, 0), V(21.872273, 2.298907, 0)], [4, 1, 1, 1, 1, 1, 1, 1, 1, 1, 1, 1, 4], [0, 1.154881502, 2.222775134, 3.210006277, 4.132804581, 5.035138423, 5.962687519, 6.919655026, 7.923214229, 8.944639381, 9.960483929, 10.97369054, 12], False, 3, [1, 1, 1, 1, 1, 1, 1, 1, 1, 1, 1, 1, 1, 1, 1], False), False)
add_polygon(sketch6, [(23.941985, 2.568138), (23.568287, 2.568138), (24.413839, 1.383943), (23.433671, 0.010445), (23.807369, 0.010445), (24.600338, 1.121723), (25.393307, 0.010445), (25.767005, 0.010445), (24.787537, 1.383943), (25.632389, 2.568138), (25.258691, 2.568138), (24.600338, 1.645461)])
sketch6.addConstraint([
    Sketcher.Constraint("Block", 8),
    Sketcher.Constraint("Block", 9),
    Sketcher.Constraint("Block", 10),
    Sketcher.Constraint("Block", 11),
    Sketcher.Constraint("Block", 15),
    Sketcher.Constraint("Block", 16),
    Sketcher.Constraint("Block", 21),
    Sketcher.Constraint("Block", 22),
    Sketcher.Constraint("Block", 23),
    Sketcher.Constraint("Block", 24),
    Sketcher.Constraint("Block", 27),
    Sketcher.Constraint("Block", 28),
    Sketcher.Constraint("Block", 29),
    Sketcher.Constraint("Block", 30),
    Sketcher.Constraint("Block", 32),
    Sketcher.Constraint("Block", 33),
    Sketcher.Constraint("Block", 35),
    Sketcher.Constraint("Block", 36),
    Sketcher.Constraint("Block", 37),
    Sketcher.Constraint("Block", 38),
    Sketcher.Constraint("Block", 39),
    Sketcher.Constraint("Block", 40),
    Sketcher.Constraint("Block", 42),
    Sketcher.Constraint("Block", 43),
    Sketcher.Constraint("Block", 44),
    Sketcher.Constraint("Coincident", 4, 2, 5, 1),
    Sketcher.Constraint("Coincident", 5, 2, 6, 1),
    Sketcher.Constraint("Coincident", 6, 2, 7, 1),
    Sketcher.Constraint("Coincident", 7, 2, 8, 2),
    Sketcher.Constraint("Coincident", 11, 1, 12, 1),
    Sketcher.Constraint("Coincident", 12, 2, 13, 1),
    Sketcher.Constraint("Coincident", 13, 2, 14, 1),
    Sketcher.Constraint("Coincident", 14, 2, 15, 2),
    Sketcher.Constraint("Coincident", 16, 1, 17, 1),
    Sketcher.Constraint("Coincident", 17, 2, 4, 1),
    Sketcher.Constraint("Coincident", 18, 2, 19, 1),
    Sketcher.Constraint("Coincident", 19, 2, 20, 1),
    Sketcher.Constraint("Coincident", 20, 2, 21, 2),
    Sketcher.Constraint("Coincident", 24, 1, 25, 1),
    Sketcher.Constraint("Coincident", 25, 2, 26, 1),
    Sketcher.Constraint("Coincident", 26, 2, 18, 1),
    Sketcher.Constraint("Coincident", 31, 2, 32, 2),
    Sketcher.Constraint("Coincident", 33, 1, 34, 1),
    Sketcher.Constraint("Coincident", 34, 2, 35, 2),
    Sketcher.Constraint("Coincident", 40, 1, 31, 1),
    Sketcher.Constraint("Coincident", 41, 2, 42, 2),
    Sketcher.Constraint("Coincident", 44, 1, 41, 1),
    Sketcher.Constraint("Vertical", 0),
    Sketcher.Constraint("Horizontal", 1),
    Sketcher.Constraint("Vertical", 2),
    Sketcher.Constraint("Horizontal", 3),
    Sketcher.Constraint("Horizontal", 4),
    Sketcher.Constraint("Vertical", 5),
    Sketcher.Constraint("Horizontal", 6),
    Sketcher.Constraint("Vertical", 7),
    Sketcher.Constraint("Vertical", 12),
    Sketcher.Constraint("Horizontal", 13),
    Sketcher.Constraint("Vertical", 14),
    Sketcher.Constraint("Vertical", 17),
    Sketcher.Constraint("Vertical", 18),
    Sketcher.Constraint("Horizontal", 19),
    Sketcher.Constraint("Vertical", 20),
    Sketcher.Constraint("Vertical", 25),
    Sketcher.Constraint("Horizontal", 26),
    Sketcher.Constraint("Horizontal", 45),
    Sketcher.Constraint("Horizontal", 48),
    Sketcher.Constraint("Horizontal", 51),
    Sketcher.Constraint("Horizontal", 54),
    Sketcher.Constraint("DistanceY", 0, 2, 0, 1, Q("3.5 mm")),
    Sketcher.Constraint("DistanceY", 5, 2, 2, 2, Q("3.5 mm")),
    Sketcher.Constraint("DistanceX", 17, 2, 18, 2, Q("5.25 mm")),
    Sketcher.Constraint("DistanceY", 31, 2, 45, 2, Q("1.75 mm")),
    Sketcher.Constraint("DistanceY", 7, 1, 7, 2, Q("0.92478 mm")),
    Sketcher.Constraint("DistanceY", 14, 1, 14, 2, Q("1.30619 mm")),
    Sketcher.Constraint("DistanceY", 17, 1, 17, 2, Q("0.461338 mm")),
    Sketcher.Constraint("DistanceY", 25, 2, 20, 2, Q("2.0627 mm")),
    Sketcher.Constraint("DistanceX", 34, 2, 46, 2, Q("1.249399 mm")),
    Sketcher.Constraint("DistanceX", 46, 2, 49, 2, Q("0.186498 mm")),
    Sketcher.Constraint("DistanceX", 49, 2, 52, 2, Q("0.1872 mm")),
    Sketcher.Constraint("DistanceX", 46, 2, 55, 2, Q("0.186498 mm")),
    Sketcher.Constraint("Distance", 49, Q("1.365188 mm")),
    Sketcher.Constraint("Distance", 50, Q("1.365188 mm")),
    Sketcher.Constraint("Distance", 53, Q("1.454679 mm")),
    Sketcher.Constraint("DistanceX", 1, 1, 1, 2, Q("0.314103 mm")),
    Sketcher.Constraint("DistanceX", 4, 2, 4, 1, Q("0.314103 mm")),
    Sketcher.Constraint("DistanceX", 45, 2, 45, 1, Q("0.373698 mm")),
    Sketcher.Constraint("DistanceX", 48, 1, 48, 2, Q("0.373698 mm")),
    Sketcher.Constraint("DistanceX", 51, 1, 51, 2, Q("0.373698 mm")),
    Sketcher.Constraint("DistanceX", 54, 2, 54, 1, Q("0.373698 mm")),
    Sketcher.Constraint("DistanceY", 18, 1, 18, 2, Q("3.589744 mm")),
    Sketcher.Constraint("DistanceX", -1, 1, 47, 2, Q("23.433671 mm")),
    Sketcher.Constraint("DistanceX", -1, 1, 53, 2, Q("25.632389 mm")),
    Sketcher.Constraint("DistanceY", -1, 1, 55, 2, Q("1.645461 mm")),
    Sketcher.Constraint("DistanceX", 1, 2, 12, 2, Q("2.737179 mm")),
    Sketcher.Constraint("DistanceX", 31, 2, 45, 2, Q("0.817508 mm")),
    Sketcher.Constraint("DistanceY", 34, 2, 46, 2, Q("0.161959 mm")),
    Sketcher.Constraint("DistanceY", 47, 2, 34, 2, Q("1.211538 mm")),
    Sketcher.Constraint("DistanceX", 49, 2, 50, 2, Q("0.792969 mm")),
    Sketcher.Constraint("DistanceY", 49, 2, 52, 2, Q("0.26222 mm")),
])
pocket3 = doc.addObject("PartDesign::Pocket", "Pocket002")
body.addObject(pocket3)
pocket3.Profile = sketch6
pocket3.Length = 1

doc.recompute()
